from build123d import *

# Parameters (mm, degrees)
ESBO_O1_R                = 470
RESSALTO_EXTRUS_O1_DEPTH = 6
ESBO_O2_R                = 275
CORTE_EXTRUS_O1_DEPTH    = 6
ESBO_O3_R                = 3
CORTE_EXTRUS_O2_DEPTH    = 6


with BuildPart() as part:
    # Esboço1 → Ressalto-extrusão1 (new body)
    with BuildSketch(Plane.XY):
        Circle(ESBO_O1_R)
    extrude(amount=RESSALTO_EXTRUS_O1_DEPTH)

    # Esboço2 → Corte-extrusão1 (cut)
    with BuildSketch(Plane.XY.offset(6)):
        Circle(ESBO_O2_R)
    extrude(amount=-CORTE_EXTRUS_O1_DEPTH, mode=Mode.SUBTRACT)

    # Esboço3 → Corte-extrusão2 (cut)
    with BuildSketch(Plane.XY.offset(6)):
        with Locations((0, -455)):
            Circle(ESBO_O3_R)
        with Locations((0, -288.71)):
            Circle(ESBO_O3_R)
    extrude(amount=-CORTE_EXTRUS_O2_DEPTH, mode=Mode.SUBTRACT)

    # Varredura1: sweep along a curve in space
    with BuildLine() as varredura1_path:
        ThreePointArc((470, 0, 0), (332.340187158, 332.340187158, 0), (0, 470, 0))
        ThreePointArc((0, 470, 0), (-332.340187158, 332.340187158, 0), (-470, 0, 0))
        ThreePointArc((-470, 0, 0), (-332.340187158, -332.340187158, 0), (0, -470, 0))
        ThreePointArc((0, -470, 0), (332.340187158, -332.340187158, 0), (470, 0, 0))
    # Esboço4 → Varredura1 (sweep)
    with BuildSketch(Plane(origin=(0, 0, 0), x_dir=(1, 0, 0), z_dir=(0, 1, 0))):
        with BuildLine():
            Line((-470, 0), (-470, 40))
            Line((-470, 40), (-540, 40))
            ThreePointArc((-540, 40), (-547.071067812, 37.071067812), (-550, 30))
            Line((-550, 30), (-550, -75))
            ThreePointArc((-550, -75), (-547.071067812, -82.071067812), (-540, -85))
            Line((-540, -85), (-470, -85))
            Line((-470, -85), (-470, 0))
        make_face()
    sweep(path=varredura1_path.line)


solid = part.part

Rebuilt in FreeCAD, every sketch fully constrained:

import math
import FreeCAD as App
import Part
import Sketcher
Q = App.Units.Quantity

doc = App.newDocument("Part")
body = doc.addObject("PartDesign::Body", "Body")

# Sketch on XY plane
sketch1 = body.newObject("Sketcher::SketchObject", "Sketch")
sketch1.AttachmentSupport = (doc.getObject("XY_Plane"), [""])
sketch1.MapMode = "FlatFace"
sketch1.addGeometry(Part.Circle(App.Vector(0, 0, 0), App.Vector(0, 0, 1), 470), False)
sketch1.addConstraint([
    Sketcher.Constraint("Coincident", 0, 3, -1, 1),
    Sketcher.Constraint("Diameter", 0, Q("940 mm")),
])
pad1 = body.newObject("PartDesign::Pad", "Pad")
pad1.Profile = sketch1
pad1.Length = 6

# Sketch on XY plane
sketch2 = body.newObject("Sketcher::SketchObject", "Sketch001")
sketch2.AttachmentSupport = (doc.getObject("XY_Plane"), [""])
sketch2.MapMode = "FlatFace"
sketch2.AttachmentOffset = App.Placement(App.Vector(0, 0, 6), App.Rotation())
sketch2.addGeometry(Part.Circle(App.Vector(0, 0, 0), App.Vector(0, 0, 1), 275), False)
sketch2.addConstraint([
    Sketcher.Constraint("Coincident", 0, 3, -1, 1),
    Sketcher.Constraint("Diameter", 0, Q("550 mm")),
])
pocket1 = body.newObject("PartDesign::Pocket", "Pocket")
pocket1.Profile = sketch2
pocket1.Length = 6

# Sketch on XY plane
sketch3 = body.newObject("Sketcher::SketchObject", "Sketch002")
sketch3.AttachmentSupport = (doc.getObject("XY_Plane"), [""])
sketch3.MapMode = "FlatFace"
sketch3.AttachmentOffset = App.Placement(App.Vector(0, 0, 6), App.Rotation())
sketch3.addGeometry([
    Part.Circle(App.Vector(0, -455, 0), App.Vector(0, 0, 1), 3),
    Part.Circle(App.Vector(0, -288.7, 0), App.Vector(0, 0, 1), 3),
], False)
sketch3.addConstraint([
    Sketcher.Constraint("Equal", 0, 1),
    Sketcher.Constraint("PointOnObject", 0, 3, -2),
    Sketcher.Constraint("PointOnObject", 1, 3, -2),
    Sketcher.Constraint("Diameter", 0, Q("6 mm")),
    Sketcher.Constraint("DistanceY", 0, 3, -1, 1, Q("455 mm")),
    Sketcher.Constraint("DistanceY", 1, 3, -1, 1, Q("288.71 mm")),
])
pocket2 = body.newObject("PartDesign::Pocket", "Pocket001")
pocket2.Profile = sketch3
pocket2.Length = 6

# Sketch on XZ plane
sketch4 = body.newObject("Sketcher::SketchObject", "Sketch003")
sketch4.AttachmentSupport = (doc.getObject("XZ_Plane"), [""])
sketch4.MapMode = "FlatFace"
sketch4.addGeometry([
    Part.LineSegment(App.Vector(-470, -40, 0), App.Vector(-540, -40, 0)),  # 0
    Part.ArcOfCircle(Part.Circle(App.Vector(-540, -30, 0), App.Vector(0, 0, 1), 10), math.radians(180), math.radians(270)),  # 1
    Part.LineSegment(App.Vector(-550, -30, 0), App.Vector(-550, 75, 0)),  # 2
    Part.ArcOfCircle(Part.Circle(App.Vector(-540, 75, 0), App.Vector(0, 0, 1), 10), math.radians(90), math.radians(180)),  # 3
    Part.LineSegment(App.Vector(-540, 85, 0), App.Vector(-470, 85, 0)),  # 4
    Part.LineSegment(App.Vector(-470, 85, 0), App.Vector(-470, -40, 0)),  # 5
], False)
sketch4.addConstraint([
    Sketcher.Constraint("Tangent", 0, 2, 1, 2),
    Sketcher.Constraint("Tangent", 1, 1, 2, 1),
    Sketcher.Constraint("Tangent", 2, 2, 3, 2),
    Sketcher.Constraint("Tangent", 3, 1, 4, 1),
    Sketcher.Constraint("Coincident", 4, 2, 5, 1),
    Sketcher.Constraint("Coincident", 5, 2, 0, 1),
    Sketcher.Constraint("Horizontal", 0),
    Sketcher.Constraint("Vertical", 2),
    Sketcher.Constraint("Horizontal", 4),
    Sketcher.Constraint("Vertical", 5),
    Sketcher.Constraint("Equal", 1, 3),
    Sketcher.Constraint("Radius", 1, Q("10 mm")),
    Sketcher.Constraint("DistanceX", 0, 2, 0, 1, Q("70 mm")),
    Sketcher.Constraint("DistanceY", 2, 1, 2, 2, Q("105 mm")),
    Sketcher.Constraint("DistanceX", 1, 3, -1, 1, Q("540 mm")),
    Sketcher.Constraint("DistanceY", 1, 3, -1, 1, Q("30 mm")),
])

# Sketch on XY plane
sketch5 = body.newObject("Sketcher::SketchObject", "Sketch004")
sketch5.AttachmentSupport = (doc.getObject("XY_Plane"), [""])
sketch5.MapMode = "FlatFace"
sketch5.addGeometry([
    Part.ArcOfCircle(Part.Circle(App.Vector(0, 0, 0), App.Vector(0, 0, 1), 470), math.radians(0), math.radians(90)),
    Part.ArcOfCircle(Part.Circle(App.Vector(0, 0, 0), App.Vector(0, 0, 1), 470), math.radians(90), math.radians(180)),
    Part.ArcOfCircle(Part.Circle(App.Vector(0, 0, 0), App.Vector(0, 0, 1), 470), math.radians(180), math.radians(270)),
    Part.ArcOfCircle(Part.Circle(App.Vector(0, 0, 0), App.Vector(0, 0, 1), 470), math.radians(-90), math.radians(0)),
], False)
sketch5.addConstraint([
    Sketcher.Constraint("Tangent", 0, 2, 1, 1),
    Sketcher.Constraint("Coincident", 1, 2, 2, 1),
    Sketcher.Constraint("Coincident", 2, 2, 3, 1),
    Sketcher.Constraint("Coincident", 3, 2, 0, 1),
    Sketcher.Constraint("Coincident", 0, 3, -1, 1),
    Sketcher.Constraint("Coincident", 2, 3, -1, 1),
    Sketcher.Constraint("Coincident", 3, 3, -1, 1),
    Sketcher.Constraint("PointOnObject", 0, 2, -2),
    Sketcher.Constraint("PointOnObject", 1, 2, -1),
    Sketcher.Constraint("PointOnObject", 2, 2, -2),
    Sketcher.Constraint("PointOnObject", 3, 2, -1),
    Sketcher.Constraint("Radius", 0, Q("470 mm")),
])
doc.recompute()

additivepipe = body.newObject("PartDesign::AdditivePipe", "AdditivePipe")
additivepipe.Profile = sketch4
additivepipe.Spine = (sketch5, ["Edge1", "Edge2", "Edge3", "Edge4"])

doc.recompute()
